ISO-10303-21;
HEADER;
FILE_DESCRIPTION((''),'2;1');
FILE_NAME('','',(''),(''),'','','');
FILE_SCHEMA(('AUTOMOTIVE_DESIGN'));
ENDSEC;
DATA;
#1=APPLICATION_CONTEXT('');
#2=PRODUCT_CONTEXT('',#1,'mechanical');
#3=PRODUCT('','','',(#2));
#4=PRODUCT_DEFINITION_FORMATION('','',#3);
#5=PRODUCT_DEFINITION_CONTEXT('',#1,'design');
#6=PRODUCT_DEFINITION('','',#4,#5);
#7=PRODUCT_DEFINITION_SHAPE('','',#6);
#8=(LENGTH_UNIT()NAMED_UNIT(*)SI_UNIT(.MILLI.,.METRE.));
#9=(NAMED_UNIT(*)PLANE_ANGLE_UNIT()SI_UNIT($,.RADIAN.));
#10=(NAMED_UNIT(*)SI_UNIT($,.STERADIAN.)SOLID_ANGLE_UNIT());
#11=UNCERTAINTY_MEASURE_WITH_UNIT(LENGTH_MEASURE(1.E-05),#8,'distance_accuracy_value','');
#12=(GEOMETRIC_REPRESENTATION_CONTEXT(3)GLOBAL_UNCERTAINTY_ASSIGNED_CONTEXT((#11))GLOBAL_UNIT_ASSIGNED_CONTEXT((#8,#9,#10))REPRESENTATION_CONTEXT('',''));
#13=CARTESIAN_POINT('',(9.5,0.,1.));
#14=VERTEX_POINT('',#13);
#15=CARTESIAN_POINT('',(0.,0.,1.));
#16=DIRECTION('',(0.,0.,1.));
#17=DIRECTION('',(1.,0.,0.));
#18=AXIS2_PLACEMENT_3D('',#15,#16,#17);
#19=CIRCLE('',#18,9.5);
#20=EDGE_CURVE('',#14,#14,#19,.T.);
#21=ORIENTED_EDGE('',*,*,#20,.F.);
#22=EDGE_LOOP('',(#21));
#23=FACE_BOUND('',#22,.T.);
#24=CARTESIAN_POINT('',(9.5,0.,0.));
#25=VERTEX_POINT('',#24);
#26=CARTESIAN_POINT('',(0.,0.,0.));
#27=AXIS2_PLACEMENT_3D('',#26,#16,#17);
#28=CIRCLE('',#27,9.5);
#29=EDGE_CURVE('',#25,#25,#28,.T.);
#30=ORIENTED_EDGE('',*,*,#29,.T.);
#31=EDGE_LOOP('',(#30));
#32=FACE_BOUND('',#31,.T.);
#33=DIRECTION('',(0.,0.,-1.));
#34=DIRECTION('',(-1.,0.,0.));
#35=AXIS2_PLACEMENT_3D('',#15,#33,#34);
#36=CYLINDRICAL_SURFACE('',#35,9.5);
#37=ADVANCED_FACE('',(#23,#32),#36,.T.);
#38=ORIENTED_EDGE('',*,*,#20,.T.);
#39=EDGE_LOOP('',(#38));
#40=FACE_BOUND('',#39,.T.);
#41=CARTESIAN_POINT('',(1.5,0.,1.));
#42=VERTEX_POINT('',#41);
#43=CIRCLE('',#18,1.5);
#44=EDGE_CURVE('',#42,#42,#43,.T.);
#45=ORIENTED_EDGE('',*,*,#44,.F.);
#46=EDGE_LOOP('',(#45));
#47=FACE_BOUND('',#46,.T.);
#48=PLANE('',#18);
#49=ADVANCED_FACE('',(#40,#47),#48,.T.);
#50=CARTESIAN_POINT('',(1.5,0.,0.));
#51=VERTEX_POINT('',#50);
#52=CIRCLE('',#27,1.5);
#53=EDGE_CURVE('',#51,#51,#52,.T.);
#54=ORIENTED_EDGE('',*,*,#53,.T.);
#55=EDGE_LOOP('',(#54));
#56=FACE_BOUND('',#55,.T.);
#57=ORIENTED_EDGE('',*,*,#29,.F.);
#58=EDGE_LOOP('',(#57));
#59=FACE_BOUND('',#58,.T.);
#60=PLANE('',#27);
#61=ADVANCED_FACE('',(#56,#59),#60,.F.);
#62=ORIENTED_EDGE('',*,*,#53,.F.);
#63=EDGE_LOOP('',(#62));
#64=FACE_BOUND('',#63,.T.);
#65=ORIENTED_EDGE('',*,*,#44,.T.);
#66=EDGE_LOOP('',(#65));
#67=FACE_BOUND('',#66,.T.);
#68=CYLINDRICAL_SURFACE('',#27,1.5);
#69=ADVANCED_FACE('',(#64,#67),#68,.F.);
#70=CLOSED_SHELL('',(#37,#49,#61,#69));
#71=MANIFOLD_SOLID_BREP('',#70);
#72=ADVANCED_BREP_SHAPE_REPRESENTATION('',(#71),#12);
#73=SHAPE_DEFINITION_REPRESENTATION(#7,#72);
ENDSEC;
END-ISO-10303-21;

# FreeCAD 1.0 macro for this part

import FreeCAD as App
import Part
import Sketcher
from FreeCAD import Vector
Q = App.Units.Quantity

doc = App.newDocument("Part")
body = doc.addObject("PartDesign::Body", "Body")

sketch1 = body.newObject("Sketcher::SketchObject", "Sketch")
sketch1.AttachmentSupport = (doc.getObject("XY_Plane"), [""])
sketch1.MapMode = "FlatFace"
sketch1.addGeometry(Part.Circle(Vector(0, 0, 0), Vector(0, 0, 1), 10), False)
sketch1.addConstraint([
    Sketcher.Constraint("Coincident", 0, 3, -1, 1),
    Sketcher.Constraint("Diameter", 0, Q("19 mm")),
])
pad1 = body.newObject("PartDesign::Pad", "Pad")
pad1.Profile = sketch1
pad1.Length = 1

sketch2 = body.newObject("Sketcher::SketchObject", "Sketch001")
sketch2.AttachmentSupport = (doc.getObject("XY_Plane"), [""])
sketch2.MapMode = "FlatFace"
sketch2.AttachmentOffset = App.Placement(Vector(0, 0, 1), App.Rotation())
sketch2.addGeometry(Part.Circle(Vector(0, 0, 0), Vector(0, 0, 1), 1.5), False)
sketch2.addConstraint([
    Sketcher.Constraint("Coincident", 0, 3, -1, 1),
    Sketcher.Constraint("Diameter", 0, Q("3 mm")),
])
pocket1 = body.newObject("PartDesign::Pocket", "Pocket")
pocket1.Profile = sketch2
pocket1.Length = 1

doc.recompute()
